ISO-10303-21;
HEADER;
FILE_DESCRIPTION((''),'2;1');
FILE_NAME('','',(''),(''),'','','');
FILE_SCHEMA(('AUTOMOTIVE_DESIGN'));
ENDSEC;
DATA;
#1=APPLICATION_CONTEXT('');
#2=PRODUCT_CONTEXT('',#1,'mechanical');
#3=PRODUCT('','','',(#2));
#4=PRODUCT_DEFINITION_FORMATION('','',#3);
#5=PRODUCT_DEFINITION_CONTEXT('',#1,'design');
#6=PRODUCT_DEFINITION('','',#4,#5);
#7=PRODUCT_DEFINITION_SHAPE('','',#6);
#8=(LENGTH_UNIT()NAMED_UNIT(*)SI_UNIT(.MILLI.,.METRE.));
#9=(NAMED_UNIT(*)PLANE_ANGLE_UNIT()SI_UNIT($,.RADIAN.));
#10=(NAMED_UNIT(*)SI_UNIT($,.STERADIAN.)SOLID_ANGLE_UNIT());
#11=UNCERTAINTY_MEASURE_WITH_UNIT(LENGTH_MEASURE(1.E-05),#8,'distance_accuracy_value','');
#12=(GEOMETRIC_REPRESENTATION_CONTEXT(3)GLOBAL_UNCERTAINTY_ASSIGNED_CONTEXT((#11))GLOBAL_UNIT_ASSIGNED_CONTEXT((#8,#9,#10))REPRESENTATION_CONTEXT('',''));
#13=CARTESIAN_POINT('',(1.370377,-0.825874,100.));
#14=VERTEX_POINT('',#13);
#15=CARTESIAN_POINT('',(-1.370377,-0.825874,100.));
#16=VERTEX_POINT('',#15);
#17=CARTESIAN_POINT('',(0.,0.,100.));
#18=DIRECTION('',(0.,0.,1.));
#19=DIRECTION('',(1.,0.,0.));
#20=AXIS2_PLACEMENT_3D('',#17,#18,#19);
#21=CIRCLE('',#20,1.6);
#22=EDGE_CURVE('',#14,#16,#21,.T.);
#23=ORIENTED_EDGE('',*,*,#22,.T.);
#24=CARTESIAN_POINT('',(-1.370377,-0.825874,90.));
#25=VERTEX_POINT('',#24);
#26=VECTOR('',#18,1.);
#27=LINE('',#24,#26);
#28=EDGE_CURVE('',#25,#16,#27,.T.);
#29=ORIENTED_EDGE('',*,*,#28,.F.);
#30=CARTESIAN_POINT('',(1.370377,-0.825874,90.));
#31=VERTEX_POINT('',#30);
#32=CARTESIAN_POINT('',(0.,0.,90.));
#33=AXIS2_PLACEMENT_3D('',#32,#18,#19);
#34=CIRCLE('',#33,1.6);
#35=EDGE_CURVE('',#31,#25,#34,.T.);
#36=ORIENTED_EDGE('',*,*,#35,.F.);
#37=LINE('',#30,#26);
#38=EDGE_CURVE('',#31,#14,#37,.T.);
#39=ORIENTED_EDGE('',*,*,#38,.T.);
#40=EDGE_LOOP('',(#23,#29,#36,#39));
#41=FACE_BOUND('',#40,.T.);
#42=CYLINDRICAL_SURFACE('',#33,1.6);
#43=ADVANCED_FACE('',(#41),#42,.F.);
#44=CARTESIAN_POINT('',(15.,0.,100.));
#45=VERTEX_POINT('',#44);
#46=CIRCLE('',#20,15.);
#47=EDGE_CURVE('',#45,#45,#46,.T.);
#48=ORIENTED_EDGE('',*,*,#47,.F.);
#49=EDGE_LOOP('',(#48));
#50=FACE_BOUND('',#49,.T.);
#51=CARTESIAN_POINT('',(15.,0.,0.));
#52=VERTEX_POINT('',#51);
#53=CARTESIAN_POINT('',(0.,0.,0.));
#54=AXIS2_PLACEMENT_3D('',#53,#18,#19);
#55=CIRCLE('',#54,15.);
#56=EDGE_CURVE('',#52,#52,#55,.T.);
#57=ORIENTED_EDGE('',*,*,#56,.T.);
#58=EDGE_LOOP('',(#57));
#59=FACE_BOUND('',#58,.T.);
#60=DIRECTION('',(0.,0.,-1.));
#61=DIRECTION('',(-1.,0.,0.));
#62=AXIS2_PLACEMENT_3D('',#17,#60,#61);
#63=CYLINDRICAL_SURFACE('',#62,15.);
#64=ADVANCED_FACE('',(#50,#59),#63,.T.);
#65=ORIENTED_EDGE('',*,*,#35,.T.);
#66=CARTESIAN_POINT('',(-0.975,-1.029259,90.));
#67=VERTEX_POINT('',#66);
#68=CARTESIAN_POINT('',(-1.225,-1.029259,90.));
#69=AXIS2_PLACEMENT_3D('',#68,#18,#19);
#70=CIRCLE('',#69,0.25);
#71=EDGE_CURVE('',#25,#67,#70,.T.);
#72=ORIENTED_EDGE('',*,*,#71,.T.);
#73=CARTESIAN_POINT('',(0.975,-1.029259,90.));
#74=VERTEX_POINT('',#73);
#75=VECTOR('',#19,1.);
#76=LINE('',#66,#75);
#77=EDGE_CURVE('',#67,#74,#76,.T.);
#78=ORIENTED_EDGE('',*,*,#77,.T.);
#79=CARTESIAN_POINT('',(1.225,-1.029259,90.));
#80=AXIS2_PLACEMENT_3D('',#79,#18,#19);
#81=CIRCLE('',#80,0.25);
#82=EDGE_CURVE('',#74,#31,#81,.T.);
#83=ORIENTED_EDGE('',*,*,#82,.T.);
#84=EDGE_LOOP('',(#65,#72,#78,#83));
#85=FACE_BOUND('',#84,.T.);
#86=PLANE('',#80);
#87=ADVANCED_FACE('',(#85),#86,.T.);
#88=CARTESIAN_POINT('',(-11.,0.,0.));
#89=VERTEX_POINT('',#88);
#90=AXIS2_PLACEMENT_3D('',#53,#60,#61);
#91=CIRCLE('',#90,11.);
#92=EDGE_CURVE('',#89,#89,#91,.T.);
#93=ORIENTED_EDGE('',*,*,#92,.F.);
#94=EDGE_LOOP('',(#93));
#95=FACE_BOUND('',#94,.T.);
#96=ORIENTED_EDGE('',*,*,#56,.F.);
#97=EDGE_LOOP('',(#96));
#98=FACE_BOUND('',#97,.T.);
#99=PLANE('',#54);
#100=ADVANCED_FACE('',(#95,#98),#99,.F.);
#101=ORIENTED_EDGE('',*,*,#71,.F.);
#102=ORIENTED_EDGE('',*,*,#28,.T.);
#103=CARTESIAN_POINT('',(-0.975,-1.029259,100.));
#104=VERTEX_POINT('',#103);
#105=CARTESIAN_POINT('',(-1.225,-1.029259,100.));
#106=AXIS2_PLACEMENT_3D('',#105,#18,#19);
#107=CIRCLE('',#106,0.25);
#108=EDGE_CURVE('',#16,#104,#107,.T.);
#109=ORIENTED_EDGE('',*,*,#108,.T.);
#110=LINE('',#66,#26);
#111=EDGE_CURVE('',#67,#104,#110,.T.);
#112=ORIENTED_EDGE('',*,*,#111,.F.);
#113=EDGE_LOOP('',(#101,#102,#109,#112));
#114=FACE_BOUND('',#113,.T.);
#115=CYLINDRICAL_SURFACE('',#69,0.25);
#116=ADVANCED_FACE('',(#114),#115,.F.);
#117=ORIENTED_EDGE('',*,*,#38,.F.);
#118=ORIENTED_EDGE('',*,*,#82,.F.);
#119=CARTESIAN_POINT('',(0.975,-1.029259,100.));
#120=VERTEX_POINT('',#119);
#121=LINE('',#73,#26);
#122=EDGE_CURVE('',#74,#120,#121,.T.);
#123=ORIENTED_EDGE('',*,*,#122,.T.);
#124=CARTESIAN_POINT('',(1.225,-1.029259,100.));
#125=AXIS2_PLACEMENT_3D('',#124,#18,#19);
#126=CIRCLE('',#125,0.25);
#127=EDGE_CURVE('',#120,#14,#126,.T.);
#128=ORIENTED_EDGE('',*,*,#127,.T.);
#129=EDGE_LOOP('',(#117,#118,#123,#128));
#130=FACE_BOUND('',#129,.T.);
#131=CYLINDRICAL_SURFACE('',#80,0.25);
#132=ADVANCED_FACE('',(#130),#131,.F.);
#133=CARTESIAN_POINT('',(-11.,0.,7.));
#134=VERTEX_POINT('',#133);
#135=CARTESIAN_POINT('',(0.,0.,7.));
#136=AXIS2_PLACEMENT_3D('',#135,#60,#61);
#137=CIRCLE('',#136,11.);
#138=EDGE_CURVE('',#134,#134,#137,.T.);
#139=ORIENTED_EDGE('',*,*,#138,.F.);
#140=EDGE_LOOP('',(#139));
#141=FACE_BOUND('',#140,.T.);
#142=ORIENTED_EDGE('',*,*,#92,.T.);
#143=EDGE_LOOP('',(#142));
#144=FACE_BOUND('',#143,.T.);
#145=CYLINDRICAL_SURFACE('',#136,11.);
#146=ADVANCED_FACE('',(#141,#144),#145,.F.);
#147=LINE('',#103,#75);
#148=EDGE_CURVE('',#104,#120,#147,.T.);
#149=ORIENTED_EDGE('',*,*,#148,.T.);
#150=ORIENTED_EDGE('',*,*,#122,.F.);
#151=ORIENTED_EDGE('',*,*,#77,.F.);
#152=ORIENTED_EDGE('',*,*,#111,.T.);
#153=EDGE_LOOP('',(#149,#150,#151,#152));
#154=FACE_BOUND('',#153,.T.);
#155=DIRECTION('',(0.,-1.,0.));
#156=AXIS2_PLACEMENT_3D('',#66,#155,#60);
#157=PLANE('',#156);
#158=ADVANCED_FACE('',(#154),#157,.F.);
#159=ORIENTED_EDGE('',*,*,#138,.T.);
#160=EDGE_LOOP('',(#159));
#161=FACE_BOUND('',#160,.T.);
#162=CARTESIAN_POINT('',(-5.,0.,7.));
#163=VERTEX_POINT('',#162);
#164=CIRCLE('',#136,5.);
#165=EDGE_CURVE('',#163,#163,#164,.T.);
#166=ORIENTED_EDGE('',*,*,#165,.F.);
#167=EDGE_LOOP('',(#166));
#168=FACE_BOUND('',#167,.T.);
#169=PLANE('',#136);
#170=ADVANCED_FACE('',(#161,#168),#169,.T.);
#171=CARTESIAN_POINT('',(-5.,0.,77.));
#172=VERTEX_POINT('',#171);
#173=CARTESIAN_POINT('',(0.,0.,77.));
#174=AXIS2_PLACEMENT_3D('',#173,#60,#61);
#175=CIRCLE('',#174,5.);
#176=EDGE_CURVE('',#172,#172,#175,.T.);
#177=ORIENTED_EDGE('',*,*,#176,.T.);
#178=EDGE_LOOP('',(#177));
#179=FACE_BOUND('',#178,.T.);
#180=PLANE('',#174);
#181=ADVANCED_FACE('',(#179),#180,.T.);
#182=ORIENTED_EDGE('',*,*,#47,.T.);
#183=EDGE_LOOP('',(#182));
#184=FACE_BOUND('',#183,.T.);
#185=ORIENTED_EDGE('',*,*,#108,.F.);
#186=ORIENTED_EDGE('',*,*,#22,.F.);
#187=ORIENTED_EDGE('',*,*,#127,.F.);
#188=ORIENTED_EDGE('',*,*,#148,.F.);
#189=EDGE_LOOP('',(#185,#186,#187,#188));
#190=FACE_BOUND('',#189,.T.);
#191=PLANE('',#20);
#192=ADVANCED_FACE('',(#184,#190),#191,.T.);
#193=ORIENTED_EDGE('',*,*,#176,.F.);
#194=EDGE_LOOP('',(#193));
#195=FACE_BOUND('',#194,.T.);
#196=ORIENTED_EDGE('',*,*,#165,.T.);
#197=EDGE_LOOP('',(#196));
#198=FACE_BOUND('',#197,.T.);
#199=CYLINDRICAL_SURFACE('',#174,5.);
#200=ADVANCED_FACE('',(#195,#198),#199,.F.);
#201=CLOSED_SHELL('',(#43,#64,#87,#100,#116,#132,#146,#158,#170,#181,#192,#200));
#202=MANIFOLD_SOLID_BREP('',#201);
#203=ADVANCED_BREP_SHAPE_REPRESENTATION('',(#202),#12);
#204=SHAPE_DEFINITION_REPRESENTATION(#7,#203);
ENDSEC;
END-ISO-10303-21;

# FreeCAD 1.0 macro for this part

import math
import FreeCAD as App
import Part
import Sketcher
from FreeCAD import Vector
Q = App.Units.Quantity

doc = App.newDocument("Part")
body = doc.addObject("PartDesign::Body", "Body")

sketch1 = doc.addObject("Sketcher::SketchObject", "Sketch")
body.addObject(sketch1)
sketch1.AttachmentSupport = (doc.XY_Plane, [""])
sketch1.MapMode = "FlatFace"
sketch1.addGeometry(Part.Circle(Vector(0, 0, 0), Vector(0, 0, 1), 15), False)
sketch1.addConstraint([
    Sketcher.Constraint("Coincident", 0, 3, -1, 1),
    Sketcher.Constraint("Diameter", 0, Q("30 mm")),
])
pad1 = doc.addObject("PartDesign::Pad", "Pad")
body.addObject(pad1)
pad1.Profile = sketch1
pad1.Length = 100

sketch2 = doc.addObject("Sketcher::SketchObject", "Sketch001")
body.addObject(sketch2)
sketch2.AttachmentSupport = (doc.XY_Plane, [""])
sketch2.MapMode = "FlatFace"
sketch2.AttachmentOffset = App.Placement(Vector(0, 0, 100), App.Rotation())
sketch2.addGeometry([
    Part.LineSegment(Vector(-0.97, -1.03, 0), Vector(0.97, -1.03, 0)),
    Part.ArcOfCircle(Part.Circle(Vector(1.23, -1.03, 0), Vector(0, 0, 1), 0.25), math.radians(-180), math.radians(54)),
    Part.ArcOfCircle(Part.Circle(Vector(0, 0, 0), Vector(0, 0, 1), 1.6), math.radians(-31), math.radians(211)),
    Part.ArcOfCircle(Part.Circle(Vector(-1.23, -1.03, 0), Vector(0, 0, 1), 0.25), math.radians(126), math.radians(360)),
], False)
sketch2.addConstraint([
    Sketcher.Constraint("Coincident", 0, 2, 1, 1),
    Sketcher.Constraint("Coincident", 1, 2, 2, 1),
    Sketcher.Constraint("Coincident", 2, 2, 3, 1),
    Sketcher.Constraint("Coincident", 3, 2, 0, 1),
    Sketcher.Constraint("Horizontal", 0),
    Sketcher.Constraint("Coincident", 2, 3, -1, 1),
    Sketcher.Constraint("Equal", 1, 3),
    Sketcher.Constraint("Symmetric", 1, 3, 3, 3, -2),
    Sketcher.Constraint("Horizontal", 3, 3, 0, 2),
    Sketcher.Constraint("Radius", 2, Q("1.6 mm")),
    Sketcher.Constraint("Radius", 1, Q("0.25 mm")),
    Sketcher.Constraint("DistanceX", 0, 1, 0, 2, Q("1.95 mm")),
    Sketcher.Constraint("DistanceY", 1, 3, -1, 1, Q("1.029259 mm")),
])
pocket1 = doc.addObject("PartDesign::Pocket", "Pocket")
body.addObject(pocket1)
pocket1.Profile = sketch2
pocket1.Length = 10

sketch3 = doc.addObject("Sketcher::SketchObject", "Sketch002")
body.addObject(sketch3)
sketch3.AttachmentSupport = (doc.XY_Plane, [""])
sketch3.MapMode = "FlatFace"
sketch3.addGeometry(Part.Circle(Vector(0, 0, 0), Vector(0, 0, 1), 11), False)
sketch3.addConstraint([
    Sketcher.Constraint("Coincident", 0, 3, -1, 1),
    Sketcher.Constraint("Diameter", 0, Q("22 mm")),
])
pocket2 = doc.addObject("PartDesign::Pocket", "Pocket001")
body.addObject(pocket2)
pocket2.Profile = sketch3
pocket2.Length = 7
pocket2.Reversed = True

sketch4 = doc.addObject("Sketcher::SketchObject", "Sketch003")
body.addObject(sketch4)
sketch4.AttachmentSupport = (doc.XY_Plane, [""])
sketch4.MapMode = "FlatFace"
sketch4.AttachmentOffset = App.Placement(Vector(0, 0, 7), App.Rotation())
sketch4.addGeometry(Part.Circle(Vector(0, 0, 0), Vector(0, 0, 1), 5), False)
sketch4.addConstraint([
    Sketcher.Constraint("Coincident", 0, 3, -1, 1),
    Sketcher.Constraint("Diameter", 0, Q("10 mm")),
])
pocket3 = doc.addObject("PartDesign::Pocket", "Pocket002")
body.addObject(pocket3)
pocket3.Profile = sketch4
pocket3.Length = 70
pocket3.Reversed = True

doc.recompute()
